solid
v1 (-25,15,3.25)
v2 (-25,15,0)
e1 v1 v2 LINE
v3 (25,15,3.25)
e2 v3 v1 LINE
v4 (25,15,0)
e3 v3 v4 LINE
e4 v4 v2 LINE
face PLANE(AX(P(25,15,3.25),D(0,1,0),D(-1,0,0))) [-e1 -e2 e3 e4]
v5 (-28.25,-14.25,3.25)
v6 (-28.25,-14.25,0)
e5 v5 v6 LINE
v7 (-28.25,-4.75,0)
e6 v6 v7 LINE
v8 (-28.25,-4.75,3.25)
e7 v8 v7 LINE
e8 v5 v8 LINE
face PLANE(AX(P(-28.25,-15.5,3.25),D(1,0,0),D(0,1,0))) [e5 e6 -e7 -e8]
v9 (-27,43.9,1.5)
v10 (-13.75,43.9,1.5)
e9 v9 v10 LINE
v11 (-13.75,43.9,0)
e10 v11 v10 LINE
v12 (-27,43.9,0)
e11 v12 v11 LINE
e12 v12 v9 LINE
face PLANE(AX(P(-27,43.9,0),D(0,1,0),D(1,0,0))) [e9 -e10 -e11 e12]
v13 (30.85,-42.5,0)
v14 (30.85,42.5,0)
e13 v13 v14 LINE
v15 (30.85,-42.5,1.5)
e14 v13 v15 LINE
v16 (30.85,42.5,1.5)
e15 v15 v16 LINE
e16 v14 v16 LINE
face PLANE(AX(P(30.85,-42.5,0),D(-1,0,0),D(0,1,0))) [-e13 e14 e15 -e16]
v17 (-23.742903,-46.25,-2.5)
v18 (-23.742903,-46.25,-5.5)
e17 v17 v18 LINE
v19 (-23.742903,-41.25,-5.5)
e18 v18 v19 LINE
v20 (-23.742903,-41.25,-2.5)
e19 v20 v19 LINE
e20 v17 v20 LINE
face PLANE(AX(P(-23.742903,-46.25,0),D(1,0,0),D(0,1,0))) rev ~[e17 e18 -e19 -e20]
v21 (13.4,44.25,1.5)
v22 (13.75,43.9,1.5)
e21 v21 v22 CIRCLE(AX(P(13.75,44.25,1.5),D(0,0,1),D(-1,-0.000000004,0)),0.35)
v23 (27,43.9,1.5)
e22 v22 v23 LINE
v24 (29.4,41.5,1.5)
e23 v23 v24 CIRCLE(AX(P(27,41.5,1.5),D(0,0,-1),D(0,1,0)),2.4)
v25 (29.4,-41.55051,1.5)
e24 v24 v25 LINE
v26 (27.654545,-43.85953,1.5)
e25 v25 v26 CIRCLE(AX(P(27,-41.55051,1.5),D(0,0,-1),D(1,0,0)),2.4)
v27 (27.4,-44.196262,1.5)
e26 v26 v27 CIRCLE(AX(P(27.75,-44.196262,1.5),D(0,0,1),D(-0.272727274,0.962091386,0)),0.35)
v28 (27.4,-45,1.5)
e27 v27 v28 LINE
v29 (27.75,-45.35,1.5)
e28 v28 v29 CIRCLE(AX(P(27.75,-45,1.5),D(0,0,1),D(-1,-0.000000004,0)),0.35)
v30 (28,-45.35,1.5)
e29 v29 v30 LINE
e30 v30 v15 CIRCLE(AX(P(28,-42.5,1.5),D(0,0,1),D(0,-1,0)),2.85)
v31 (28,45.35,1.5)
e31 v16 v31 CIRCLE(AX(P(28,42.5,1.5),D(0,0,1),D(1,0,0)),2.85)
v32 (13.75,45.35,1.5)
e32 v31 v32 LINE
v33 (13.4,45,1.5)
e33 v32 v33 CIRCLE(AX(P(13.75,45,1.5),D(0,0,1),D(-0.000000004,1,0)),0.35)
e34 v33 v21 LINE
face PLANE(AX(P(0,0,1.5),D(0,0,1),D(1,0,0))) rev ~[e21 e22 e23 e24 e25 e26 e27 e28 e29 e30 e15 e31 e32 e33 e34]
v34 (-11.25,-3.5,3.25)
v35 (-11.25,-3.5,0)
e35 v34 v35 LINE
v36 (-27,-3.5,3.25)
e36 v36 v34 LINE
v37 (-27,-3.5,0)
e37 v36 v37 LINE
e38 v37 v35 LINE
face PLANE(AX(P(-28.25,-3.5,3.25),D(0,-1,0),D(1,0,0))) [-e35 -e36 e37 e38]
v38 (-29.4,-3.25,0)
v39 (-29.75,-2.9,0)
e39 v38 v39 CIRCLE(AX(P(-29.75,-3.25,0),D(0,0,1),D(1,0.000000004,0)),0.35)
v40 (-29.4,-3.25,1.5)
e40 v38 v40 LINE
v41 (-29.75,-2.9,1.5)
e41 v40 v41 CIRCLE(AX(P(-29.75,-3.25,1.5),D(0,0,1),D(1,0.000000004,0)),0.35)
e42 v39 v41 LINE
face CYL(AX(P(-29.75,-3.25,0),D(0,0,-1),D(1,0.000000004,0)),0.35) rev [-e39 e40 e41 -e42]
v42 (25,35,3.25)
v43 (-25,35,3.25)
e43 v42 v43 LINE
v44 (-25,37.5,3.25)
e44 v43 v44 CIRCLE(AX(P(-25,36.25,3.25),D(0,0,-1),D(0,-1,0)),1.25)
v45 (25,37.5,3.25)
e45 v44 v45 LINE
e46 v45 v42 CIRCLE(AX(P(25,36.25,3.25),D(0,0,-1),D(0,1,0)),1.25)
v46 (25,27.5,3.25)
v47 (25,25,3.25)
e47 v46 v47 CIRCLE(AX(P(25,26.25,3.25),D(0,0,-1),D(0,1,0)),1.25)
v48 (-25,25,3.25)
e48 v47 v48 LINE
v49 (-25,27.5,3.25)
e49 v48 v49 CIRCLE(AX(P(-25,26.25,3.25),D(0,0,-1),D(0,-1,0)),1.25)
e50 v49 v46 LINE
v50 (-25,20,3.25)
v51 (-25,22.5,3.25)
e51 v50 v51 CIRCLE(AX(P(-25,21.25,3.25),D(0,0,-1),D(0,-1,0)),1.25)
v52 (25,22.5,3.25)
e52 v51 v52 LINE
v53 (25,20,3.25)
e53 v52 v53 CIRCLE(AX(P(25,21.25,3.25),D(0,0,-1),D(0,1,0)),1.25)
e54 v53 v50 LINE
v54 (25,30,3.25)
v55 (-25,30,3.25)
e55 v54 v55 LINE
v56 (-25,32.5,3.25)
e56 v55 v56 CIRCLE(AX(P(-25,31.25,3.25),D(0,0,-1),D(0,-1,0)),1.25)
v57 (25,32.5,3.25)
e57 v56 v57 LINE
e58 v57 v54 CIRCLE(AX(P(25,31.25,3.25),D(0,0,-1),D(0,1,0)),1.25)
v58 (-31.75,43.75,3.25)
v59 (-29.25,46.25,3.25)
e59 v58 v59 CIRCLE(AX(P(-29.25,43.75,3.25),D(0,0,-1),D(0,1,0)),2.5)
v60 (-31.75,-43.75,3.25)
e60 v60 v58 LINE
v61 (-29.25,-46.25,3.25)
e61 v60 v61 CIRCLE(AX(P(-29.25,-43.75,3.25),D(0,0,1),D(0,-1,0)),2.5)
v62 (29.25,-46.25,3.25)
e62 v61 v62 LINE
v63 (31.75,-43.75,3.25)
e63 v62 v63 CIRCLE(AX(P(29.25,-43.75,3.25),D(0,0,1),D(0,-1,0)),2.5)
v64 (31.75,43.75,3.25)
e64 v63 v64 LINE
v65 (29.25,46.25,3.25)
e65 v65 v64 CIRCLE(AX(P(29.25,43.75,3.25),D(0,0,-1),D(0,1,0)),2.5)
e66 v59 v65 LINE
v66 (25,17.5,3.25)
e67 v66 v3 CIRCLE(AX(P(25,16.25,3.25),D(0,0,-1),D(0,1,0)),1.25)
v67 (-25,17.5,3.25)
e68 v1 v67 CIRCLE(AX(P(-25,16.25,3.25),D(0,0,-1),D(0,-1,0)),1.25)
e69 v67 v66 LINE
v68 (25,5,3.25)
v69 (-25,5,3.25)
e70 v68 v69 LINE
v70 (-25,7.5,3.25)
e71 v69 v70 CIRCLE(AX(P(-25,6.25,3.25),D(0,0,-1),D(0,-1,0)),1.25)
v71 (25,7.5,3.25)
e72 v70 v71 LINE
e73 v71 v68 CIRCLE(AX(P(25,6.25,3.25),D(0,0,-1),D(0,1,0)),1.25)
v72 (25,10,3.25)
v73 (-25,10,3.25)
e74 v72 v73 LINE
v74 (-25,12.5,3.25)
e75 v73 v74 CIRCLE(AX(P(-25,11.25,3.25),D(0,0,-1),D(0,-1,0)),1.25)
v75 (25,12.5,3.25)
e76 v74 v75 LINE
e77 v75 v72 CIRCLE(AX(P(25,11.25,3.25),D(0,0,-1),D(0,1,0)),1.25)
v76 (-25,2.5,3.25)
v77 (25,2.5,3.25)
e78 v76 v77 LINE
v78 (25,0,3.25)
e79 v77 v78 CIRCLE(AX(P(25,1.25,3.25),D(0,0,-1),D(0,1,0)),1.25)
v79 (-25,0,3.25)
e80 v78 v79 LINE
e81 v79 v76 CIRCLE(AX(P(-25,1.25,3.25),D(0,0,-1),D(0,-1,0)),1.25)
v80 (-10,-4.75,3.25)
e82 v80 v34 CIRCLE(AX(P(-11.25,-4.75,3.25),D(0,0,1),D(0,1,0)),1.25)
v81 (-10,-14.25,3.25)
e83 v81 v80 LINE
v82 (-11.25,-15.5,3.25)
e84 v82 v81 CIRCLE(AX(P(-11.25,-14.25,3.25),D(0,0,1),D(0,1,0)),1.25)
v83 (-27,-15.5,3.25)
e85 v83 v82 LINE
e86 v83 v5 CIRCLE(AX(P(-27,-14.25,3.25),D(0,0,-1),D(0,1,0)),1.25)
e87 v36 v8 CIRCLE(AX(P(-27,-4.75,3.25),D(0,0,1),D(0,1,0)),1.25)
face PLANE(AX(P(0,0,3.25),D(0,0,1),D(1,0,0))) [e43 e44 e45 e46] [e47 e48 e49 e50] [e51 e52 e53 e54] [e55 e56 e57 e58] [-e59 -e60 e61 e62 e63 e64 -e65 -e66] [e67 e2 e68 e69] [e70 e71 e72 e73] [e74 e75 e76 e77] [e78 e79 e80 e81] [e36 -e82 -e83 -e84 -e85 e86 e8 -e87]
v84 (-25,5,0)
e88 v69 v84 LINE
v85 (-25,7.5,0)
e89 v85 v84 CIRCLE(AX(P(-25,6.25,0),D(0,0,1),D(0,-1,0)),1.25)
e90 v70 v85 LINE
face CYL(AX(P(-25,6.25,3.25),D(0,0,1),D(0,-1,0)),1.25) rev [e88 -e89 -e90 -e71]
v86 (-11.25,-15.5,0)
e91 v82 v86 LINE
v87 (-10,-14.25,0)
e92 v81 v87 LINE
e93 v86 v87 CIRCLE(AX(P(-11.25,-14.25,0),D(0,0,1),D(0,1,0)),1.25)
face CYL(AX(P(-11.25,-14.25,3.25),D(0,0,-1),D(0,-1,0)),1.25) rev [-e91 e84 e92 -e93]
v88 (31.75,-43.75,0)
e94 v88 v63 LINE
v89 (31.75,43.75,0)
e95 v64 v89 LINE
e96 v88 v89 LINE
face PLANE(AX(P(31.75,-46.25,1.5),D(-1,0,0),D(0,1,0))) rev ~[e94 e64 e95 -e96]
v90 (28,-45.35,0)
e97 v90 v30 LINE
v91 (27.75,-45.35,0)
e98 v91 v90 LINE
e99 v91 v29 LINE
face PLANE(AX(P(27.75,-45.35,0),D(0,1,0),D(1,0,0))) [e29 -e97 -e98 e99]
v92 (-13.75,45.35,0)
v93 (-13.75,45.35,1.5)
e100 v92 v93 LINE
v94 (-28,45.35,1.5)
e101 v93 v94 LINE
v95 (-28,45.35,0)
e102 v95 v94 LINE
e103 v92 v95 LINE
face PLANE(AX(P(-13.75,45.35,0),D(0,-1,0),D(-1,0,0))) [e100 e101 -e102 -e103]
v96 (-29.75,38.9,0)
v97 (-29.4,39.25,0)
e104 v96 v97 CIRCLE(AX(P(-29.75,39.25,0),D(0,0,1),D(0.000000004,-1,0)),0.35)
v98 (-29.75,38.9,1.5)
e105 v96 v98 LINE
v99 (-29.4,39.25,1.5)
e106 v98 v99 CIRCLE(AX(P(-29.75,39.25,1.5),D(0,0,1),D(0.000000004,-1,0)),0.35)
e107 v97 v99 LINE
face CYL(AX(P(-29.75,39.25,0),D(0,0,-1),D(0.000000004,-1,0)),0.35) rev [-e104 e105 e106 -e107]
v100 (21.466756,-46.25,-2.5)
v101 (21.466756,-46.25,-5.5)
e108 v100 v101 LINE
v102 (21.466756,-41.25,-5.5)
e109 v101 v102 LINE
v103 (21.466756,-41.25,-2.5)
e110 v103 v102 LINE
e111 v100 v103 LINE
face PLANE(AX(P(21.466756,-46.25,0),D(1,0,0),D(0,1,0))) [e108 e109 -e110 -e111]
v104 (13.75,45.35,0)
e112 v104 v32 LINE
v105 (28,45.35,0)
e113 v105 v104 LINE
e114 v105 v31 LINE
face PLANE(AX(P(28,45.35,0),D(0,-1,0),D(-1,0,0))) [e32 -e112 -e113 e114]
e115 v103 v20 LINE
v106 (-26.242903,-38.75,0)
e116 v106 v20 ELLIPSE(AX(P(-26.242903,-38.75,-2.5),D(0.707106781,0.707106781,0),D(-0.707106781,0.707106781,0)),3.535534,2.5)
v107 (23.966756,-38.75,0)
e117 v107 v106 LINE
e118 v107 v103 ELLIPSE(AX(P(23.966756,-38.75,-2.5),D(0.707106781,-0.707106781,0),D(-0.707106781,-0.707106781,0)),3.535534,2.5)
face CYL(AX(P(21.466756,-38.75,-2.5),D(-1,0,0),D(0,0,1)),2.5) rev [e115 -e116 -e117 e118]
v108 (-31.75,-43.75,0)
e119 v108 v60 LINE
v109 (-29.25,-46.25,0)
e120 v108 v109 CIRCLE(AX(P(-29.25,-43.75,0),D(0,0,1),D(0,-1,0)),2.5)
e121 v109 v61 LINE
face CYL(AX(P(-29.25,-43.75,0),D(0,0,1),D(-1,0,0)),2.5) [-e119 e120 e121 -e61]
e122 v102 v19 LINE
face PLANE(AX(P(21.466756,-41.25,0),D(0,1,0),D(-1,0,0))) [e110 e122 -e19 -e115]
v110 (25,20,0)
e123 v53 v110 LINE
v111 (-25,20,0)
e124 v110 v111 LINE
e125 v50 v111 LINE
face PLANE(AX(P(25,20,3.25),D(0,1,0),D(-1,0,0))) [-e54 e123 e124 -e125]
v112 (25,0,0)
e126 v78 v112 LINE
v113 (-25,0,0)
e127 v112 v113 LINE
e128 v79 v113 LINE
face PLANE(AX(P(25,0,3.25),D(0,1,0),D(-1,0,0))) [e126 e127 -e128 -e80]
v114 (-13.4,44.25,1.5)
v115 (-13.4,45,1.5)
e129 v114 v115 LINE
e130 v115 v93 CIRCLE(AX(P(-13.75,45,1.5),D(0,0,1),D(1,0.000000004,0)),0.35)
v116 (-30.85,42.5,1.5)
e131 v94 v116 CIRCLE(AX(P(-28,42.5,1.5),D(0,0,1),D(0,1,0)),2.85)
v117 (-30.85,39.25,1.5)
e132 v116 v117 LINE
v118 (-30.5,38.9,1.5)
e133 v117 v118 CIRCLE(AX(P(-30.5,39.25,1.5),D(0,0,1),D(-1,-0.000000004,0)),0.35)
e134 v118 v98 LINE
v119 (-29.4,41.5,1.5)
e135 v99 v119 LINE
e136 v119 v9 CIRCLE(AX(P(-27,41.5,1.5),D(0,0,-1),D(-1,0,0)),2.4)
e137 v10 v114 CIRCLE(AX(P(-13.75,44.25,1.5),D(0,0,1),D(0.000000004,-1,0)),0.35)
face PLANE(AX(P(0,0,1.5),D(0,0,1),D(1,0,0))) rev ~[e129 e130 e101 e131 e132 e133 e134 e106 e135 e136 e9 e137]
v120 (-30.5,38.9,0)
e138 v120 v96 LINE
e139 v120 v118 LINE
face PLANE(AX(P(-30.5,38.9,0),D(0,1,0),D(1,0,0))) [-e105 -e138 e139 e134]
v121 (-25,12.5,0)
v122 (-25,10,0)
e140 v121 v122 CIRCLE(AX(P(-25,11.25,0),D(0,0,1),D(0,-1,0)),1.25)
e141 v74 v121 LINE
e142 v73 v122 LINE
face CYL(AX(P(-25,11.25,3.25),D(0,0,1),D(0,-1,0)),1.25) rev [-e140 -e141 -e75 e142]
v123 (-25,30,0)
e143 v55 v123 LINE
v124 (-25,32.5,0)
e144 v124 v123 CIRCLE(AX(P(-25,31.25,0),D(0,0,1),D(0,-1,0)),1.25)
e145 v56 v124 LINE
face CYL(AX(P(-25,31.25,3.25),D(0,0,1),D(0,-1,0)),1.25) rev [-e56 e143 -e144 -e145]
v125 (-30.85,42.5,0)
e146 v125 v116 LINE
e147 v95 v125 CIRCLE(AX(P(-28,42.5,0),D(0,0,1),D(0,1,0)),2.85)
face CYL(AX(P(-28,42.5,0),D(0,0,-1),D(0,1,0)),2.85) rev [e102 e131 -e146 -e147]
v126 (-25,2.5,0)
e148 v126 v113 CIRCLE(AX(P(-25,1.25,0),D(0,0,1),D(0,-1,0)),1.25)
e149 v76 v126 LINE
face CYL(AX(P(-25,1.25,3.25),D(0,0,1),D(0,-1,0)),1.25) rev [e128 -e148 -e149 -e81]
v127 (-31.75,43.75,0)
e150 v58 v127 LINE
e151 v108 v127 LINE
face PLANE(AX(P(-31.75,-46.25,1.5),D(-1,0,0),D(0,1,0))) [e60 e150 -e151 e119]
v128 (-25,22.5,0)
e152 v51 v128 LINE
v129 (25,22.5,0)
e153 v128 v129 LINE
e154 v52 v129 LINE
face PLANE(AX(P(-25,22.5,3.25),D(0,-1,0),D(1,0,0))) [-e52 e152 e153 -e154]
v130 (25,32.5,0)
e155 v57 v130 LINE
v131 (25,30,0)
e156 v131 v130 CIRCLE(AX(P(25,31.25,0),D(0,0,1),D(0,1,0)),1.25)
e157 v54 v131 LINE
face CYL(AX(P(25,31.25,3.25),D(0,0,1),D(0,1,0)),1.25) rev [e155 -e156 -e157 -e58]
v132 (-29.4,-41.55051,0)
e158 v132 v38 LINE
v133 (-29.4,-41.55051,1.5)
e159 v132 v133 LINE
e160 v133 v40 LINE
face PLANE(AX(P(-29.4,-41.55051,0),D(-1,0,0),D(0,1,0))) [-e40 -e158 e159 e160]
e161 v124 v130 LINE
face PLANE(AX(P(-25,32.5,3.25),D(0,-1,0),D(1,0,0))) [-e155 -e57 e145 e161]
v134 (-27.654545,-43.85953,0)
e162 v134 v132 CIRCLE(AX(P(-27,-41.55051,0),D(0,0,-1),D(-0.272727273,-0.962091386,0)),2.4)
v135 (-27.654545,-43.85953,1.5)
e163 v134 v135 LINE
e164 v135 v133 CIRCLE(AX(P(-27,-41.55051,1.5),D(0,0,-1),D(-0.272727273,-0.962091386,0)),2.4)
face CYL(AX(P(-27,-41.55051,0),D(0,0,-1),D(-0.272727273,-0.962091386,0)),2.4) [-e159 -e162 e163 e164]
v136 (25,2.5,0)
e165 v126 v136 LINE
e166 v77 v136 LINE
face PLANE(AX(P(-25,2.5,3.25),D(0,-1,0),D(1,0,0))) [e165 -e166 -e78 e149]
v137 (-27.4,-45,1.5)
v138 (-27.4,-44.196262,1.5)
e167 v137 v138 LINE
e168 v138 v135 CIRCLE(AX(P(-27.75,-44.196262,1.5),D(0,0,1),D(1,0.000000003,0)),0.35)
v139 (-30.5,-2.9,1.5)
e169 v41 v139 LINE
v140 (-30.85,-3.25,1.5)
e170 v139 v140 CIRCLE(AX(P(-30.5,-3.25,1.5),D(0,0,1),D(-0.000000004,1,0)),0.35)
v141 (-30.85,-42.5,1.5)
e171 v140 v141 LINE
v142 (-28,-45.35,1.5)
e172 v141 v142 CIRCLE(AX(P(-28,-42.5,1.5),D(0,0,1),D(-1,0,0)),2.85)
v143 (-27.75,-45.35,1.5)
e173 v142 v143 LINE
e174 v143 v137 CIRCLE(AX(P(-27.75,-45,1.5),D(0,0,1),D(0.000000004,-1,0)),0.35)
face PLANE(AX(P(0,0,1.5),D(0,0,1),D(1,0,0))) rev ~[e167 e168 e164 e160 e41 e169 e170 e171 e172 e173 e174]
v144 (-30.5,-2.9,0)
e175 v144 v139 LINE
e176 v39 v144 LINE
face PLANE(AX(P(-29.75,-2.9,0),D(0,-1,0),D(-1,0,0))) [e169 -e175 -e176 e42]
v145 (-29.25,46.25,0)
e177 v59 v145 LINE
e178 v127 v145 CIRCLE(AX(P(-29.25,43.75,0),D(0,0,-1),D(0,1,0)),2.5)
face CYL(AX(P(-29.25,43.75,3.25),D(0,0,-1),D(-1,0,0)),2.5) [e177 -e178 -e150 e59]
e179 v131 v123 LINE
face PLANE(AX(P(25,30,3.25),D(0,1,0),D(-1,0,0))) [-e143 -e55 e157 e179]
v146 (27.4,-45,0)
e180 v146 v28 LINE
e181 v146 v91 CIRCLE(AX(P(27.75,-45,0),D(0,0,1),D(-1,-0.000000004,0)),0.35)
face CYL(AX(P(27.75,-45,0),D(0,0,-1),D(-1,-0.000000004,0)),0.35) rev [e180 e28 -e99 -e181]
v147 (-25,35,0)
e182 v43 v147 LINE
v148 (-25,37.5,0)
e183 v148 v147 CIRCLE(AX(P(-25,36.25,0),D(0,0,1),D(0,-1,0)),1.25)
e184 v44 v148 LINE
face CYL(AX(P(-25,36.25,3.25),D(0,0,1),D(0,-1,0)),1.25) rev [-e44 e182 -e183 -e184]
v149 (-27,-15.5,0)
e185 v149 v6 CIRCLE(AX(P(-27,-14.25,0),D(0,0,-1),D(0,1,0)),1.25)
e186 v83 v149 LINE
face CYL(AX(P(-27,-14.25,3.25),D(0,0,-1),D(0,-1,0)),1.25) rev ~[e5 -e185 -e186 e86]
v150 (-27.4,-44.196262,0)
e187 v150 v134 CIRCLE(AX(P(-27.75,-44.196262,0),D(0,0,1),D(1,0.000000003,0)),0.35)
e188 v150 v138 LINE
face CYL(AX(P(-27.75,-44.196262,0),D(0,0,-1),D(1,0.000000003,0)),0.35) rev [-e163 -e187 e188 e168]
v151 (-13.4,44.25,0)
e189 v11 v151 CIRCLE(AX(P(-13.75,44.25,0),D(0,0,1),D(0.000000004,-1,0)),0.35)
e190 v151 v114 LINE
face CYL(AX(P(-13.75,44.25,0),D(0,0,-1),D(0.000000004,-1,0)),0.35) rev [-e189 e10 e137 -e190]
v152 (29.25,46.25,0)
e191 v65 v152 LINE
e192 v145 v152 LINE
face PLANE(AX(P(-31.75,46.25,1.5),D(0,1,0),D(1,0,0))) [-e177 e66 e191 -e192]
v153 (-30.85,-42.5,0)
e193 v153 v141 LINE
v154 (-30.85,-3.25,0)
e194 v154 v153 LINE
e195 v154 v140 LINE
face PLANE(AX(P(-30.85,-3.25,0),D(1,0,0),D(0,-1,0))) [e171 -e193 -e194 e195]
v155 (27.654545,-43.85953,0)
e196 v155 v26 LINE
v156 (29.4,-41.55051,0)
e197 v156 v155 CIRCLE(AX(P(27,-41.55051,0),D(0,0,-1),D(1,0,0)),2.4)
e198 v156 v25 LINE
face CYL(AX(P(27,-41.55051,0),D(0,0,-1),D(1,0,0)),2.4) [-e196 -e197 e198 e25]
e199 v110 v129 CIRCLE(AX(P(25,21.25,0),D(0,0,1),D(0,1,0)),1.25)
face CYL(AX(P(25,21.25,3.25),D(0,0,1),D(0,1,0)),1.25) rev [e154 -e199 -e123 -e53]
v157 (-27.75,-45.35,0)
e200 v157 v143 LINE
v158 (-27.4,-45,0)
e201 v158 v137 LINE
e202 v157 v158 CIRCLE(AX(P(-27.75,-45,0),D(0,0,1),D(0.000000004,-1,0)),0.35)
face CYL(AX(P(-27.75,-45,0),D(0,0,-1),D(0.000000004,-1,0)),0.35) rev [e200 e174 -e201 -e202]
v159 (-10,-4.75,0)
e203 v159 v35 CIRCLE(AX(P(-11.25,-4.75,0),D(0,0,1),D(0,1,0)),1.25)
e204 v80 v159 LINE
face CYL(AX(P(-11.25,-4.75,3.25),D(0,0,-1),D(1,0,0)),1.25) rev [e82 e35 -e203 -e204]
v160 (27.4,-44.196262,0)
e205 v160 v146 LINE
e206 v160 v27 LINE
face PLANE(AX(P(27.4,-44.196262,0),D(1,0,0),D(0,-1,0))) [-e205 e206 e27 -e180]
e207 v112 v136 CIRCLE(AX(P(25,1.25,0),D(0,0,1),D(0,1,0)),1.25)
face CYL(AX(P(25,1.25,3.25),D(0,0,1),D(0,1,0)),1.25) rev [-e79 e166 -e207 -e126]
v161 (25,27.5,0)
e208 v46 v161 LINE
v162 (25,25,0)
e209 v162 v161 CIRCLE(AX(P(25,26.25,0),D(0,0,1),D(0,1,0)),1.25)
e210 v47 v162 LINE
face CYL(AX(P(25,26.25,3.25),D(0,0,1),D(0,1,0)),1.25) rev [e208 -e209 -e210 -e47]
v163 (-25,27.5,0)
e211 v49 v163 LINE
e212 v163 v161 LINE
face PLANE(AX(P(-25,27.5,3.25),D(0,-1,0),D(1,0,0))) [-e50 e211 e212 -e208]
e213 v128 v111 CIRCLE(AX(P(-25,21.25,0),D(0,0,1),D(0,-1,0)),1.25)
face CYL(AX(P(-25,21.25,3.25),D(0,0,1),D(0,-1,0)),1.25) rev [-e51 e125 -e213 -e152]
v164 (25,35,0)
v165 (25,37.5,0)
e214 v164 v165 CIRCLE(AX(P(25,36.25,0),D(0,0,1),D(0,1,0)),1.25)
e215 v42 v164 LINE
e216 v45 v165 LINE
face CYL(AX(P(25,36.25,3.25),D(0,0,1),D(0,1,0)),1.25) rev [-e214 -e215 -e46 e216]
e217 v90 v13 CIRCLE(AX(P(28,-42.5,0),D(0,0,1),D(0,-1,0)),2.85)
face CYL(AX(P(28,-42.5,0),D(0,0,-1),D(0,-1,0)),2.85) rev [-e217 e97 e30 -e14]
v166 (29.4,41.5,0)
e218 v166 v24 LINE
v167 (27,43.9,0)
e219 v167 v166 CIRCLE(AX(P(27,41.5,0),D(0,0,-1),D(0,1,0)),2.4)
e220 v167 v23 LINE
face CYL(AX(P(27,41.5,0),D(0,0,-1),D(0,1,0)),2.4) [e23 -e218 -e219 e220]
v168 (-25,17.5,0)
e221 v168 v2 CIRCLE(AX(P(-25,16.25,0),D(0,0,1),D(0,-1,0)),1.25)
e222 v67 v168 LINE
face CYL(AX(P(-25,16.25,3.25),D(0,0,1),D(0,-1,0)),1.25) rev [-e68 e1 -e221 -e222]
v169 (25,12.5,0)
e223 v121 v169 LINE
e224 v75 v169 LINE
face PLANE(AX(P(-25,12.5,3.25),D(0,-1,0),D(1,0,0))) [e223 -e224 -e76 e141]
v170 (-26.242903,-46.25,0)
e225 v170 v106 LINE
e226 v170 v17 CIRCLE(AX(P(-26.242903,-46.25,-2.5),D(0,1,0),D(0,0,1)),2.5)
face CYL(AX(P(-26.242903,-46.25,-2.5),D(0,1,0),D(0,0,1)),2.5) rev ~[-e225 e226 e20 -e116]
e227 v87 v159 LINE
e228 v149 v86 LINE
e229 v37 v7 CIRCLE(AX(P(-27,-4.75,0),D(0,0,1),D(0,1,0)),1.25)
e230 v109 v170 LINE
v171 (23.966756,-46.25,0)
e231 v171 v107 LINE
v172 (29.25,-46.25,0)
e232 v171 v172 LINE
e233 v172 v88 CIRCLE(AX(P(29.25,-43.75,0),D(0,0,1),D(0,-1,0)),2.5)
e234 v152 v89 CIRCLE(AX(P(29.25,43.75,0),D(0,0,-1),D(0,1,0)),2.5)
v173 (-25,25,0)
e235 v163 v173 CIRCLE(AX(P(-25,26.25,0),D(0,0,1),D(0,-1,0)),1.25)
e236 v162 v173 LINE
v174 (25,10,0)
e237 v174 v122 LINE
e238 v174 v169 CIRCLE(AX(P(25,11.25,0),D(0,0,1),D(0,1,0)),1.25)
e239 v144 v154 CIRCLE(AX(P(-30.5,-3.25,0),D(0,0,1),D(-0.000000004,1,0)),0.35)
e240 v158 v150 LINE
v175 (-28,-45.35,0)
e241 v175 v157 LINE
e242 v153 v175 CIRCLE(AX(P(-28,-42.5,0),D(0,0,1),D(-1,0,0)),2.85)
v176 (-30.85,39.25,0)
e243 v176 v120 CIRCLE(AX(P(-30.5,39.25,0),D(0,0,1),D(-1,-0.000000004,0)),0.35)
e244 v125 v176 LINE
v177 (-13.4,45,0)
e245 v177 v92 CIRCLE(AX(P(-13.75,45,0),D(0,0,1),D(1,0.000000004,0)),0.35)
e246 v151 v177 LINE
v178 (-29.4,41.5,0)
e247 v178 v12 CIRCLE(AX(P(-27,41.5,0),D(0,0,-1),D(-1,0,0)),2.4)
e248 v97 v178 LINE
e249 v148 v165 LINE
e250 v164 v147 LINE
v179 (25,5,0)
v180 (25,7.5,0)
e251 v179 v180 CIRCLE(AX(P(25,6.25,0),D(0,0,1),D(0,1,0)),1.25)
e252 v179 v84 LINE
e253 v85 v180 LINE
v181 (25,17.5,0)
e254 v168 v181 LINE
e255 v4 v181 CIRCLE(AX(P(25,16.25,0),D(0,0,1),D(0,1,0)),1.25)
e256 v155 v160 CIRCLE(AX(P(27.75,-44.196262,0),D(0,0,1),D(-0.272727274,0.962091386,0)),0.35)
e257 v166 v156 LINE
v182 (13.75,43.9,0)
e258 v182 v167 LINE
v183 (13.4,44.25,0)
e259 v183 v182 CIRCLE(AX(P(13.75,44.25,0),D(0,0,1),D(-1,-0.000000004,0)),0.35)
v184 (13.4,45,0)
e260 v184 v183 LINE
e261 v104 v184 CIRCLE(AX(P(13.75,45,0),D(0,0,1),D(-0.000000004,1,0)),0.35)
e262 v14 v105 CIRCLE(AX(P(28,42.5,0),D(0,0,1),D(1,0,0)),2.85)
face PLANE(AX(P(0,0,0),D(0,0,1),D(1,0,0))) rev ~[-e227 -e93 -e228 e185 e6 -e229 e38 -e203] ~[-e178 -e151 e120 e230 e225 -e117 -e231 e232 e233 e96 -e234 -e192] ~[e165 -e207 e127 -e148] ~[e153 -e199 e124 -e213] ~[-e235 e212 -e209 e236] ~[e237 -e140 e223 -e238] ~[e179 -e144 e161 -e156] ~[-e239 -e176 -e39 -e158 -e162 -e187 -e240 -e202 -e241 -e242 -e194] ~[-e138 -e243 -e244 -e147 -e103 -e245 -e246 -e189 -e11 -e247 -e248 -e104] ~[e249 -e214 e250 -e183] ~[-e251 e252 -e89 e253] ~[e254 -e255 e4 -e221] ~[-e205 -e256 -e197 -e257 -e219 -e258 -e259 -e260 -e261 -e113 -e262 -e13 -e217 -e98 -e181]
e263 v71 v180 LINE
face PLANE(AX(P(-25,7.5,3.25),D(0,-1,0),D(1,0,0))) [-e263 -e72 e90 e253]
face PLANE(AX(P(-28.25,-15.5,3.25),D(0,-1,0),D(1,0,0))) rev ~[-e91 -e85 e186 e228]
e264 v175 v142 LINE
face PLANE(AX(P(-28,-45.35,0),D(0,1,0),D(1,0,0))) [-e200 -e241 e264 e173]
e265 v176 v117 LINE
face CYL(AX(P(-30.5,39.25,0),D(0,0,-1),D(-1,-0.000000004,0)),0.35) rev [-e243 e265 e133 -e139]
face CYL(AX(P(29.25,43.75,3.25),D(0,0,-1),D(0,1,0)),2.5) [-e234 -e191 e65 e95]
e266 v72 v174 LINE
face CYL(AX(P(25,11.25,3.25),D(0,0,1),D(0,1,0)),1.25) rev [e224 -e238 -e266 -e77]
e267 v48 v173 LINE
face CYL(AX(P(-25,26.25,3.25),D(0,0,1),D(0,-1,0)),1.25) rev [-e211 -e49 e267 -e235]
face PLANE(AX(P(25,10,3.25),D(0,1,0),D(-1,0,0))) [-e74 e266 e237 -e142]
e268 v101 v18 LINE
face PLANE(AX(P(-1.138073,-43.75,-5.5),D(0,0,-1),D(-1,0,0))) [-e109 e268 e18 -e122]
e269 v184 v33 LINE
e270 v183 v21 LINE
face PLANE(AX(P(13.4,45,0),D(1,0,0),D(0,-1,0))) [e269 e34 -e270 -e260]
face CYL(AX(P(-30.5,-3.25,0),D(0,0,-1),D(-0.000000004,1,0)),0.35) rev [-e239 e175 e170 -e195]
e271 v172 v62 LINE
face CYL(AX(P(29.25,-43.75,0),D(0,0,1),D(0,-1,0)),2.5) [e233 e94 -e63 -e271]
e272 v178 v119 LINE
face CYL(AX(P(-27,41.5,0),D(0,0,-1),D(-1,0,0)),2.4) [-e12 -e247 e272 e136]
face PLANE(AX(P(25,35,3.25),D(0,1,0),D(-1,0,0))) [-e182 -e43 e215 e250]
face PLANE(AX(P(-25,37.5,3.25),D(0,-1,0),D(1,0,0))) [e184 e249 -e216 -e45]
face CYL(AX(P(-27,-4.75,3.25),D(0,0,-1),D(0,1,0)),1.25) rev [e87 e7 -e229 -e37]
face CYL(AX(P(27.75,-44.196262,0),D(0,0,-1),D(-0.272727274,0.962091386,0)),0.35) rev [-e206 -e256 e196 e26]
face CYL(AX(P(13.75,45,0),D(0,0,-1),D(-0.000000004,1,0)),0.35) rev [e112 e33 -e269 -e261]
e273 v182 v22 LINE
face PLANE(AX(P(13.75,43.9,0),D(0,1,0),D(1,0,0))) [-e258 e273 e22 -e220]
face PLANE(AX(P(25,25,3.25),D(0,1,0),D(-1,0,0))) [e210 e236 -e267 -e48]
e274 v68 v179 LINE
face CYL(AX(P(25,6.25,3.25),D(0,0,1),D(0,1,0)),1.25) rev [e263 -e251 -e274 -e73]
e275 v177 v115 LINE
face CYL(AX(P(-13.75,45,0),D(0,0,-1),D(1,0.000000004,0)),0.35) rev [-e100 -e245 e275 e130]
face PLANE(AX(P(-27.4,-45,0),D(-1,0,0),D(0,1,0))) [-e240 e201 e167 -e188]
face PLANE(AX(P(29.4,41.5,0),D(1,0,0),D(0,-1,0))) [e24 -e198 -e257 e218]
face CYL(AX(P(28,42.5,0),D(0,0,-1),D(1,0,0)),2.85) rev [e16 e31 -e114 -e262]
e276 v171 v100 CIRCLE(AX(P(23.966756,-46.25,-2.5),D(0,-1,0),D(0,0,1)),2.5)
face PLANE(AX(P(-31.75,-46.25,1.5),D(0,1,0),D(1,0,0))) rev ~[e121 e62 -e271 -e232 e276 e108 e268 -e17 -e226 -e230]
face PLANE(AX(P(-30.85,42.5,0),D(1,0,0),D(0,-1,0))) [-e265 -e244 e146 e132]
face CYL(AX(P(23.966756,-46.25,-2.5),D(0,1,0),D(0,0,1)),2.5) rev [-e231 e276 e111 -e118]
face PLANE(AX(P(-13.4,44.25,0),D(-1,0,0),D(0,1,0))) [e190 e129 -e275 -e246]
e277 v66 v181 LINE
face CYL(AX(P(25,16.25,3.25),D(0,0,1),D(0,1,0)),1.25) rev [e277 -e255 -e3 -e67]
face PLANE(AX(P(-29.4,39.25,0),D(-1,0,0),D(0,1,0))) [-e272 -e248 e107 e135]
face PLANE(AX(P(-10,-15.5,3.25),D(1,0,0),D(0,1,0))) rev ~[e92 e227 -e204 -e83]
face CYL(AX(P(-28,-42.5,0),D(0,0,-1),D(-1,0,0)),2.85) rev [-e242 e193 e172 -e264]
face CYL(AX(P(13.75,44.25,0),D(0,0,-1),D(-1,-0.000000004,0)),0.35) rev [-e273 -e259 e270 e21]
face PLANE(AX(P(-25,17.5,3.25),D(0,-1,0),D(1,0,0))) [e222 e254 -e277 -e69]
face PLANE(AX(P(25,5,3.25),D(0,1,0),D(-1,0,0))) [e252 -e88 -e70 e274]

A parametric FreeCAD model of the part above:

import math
import FreeCAD as App
import Part
import Sketcher

V = App.Vector


def edges_at(feature, points):
    """Names of the edges that pass closest to the given points."""
    edges = feature.Shape.Edges
    near = lambda p: min(range(len(edges)), key=lambda i: edges[i].distToShape(Part.Vertex(*p))[0])
    return sorted({f"Edge{near(p) + 1}" for p in points})

doc = App.newDocument("Part")
body = doc.addObject("PartDesign::Body", "Body")

# Sketch on XY plane
sketch1 = doc.addObject("Sketcher::SketchObject", "Sketch")
body.addObject(sketch1)
sketch1.AttachmentSupport = (doc.XY_Plane, [""])
sketch1.MapMode = "FlatFace"
sketch1.addGeometry([
    Part.LineSegment(V(-31.75, 46.25, 0), V(-31.75, -46.25, 0)),  # 0
    Part.LineSegment(V(-31.75, -46.25, 0), V(31.75, -46.25, 0)),  # 1
    Part.LineSegment(V(31.75, -46.25, 0), V(31.75, 46.25, 0)),  # 2
    Part.LineSegment(V(31.75, 46.25, 0), V(-31.75, 46.25, 0)),  # 3
    Part.LineSegment(V(-29.4, -3.25, 0), V(-29.4, -41.55, 0)),  # 4
    Part.ArcOfCircle(Part.Circle(V(-27, -41.55, 0), V(0, 0, 1), 2.4), math.radians(180), math.radians(254)),  # 5
    Part.ArcOfCircle(Part.Circle(V(-27.75, -44.2, 0), V(0, 0, 1), 0.35), math.radians(0), math.radians(74)),  # 6
    Part.LineSegment(V(-27.4, -44.2, 0), V(-27.4, -45, 0)),  # 7
    Part.ArcOfCircle(Part.Circle(V(-27.75, -45, 0), V(0, 0, 1), 0.35), math.radians(-90), math.radians(0)),  # 8
    Part.LineSegment(V(-27.75, -45.35, 0), V(-28, -45.35, 0)),  # 9
    Part.ArcOfCircle(Part.Circle(V(-28, -42.5, 0), V(0, 0, 1), 2.85), math.radians(-180), math.radians(-90)),  # 10
    Part.LineSegment(V(-30.85, -42.5, 0), V(-30.85, -3.25, 0)),  # 11
    Part.ArcOfCircle(Part.Circle(V(-30.5, -3.25, 0), V(0, 0, 1), 0.35), math.radians(90), math.radians(180)),  # 12
    Part.LineSegment(V(-30.5, -2.9, 0), V(-29.75, -2.9, 0)),  # 13
    Part.ArcOfCircle(Part.Circle(V(-29.75, -3.25, 0), V(0, 0, 1), 0.35), math.radians(0), math.radians(90)),  # 14
    Part.LineSegment(V(-13.75, 43.9, 0), V(-27, 43.9, 0)),  # 15
    Part.ArcOfCircle(Part.Circle(V(-27, 41.5, 0), V(0, 0, 1), 2.4), math.radians(90), math.radians(180)),  # 16
    Part.LineSegment(V(-29.4, 41.5, 0), V(-29.4, 39.25, 0)),  # 17
    Part.ArcOfCircle(Part.Circle(V(-29.75, 39.25, 0), V(0, 0, 1), 0.35), math.radians(-90), math.radians(0)),  # 18
    Part.LineSegment(V(-29.75, 38.9, 0), V(-30.5, 38.9, 0)),  # 19
    Part.ArcOfCircle(Part.Circle(V(-30.5, 39.25, 0), V(0, 0, 1), 0.35), math.radians(-180), math.radians(-90)),  # 20
    Part.LineSegment(V(-30.85, 39.25, 0), V(-30.85, 42.5, 0)),  # 21
    Part.ArcOfCircle(Part.Circle(V(-28, 42.5, 0), V(0, 0, 1), 2.85), math.radians(90), math.radians(180)),  # 22
    Part.LineSegment(V(-28, 45.35, 0), V(-13.75, 45.35, 0)),  # 23
    Part.ArcOfCircle(Part.Circle(V(-13.75, 45, 0), V(0, 0, 1), 0.35), math.radians(0), math.radians(90)),  # 24
    Part.LineSegment(V(-13.4, 45, 0), V(-13.4, 44.25, 0)),  # 25
    Part.ArcOfCircle(Part.Circle(V(-13.75, 44.25, 0), V(0, 0, 1), 0.35), math.radians(-90), math.radians(0)),  # 26
    Part.LineSegment(V(30.85, 42.5, 0), V(30.85, -42.5, 0)),  # 27
    Part.ArcOfCircle(Part.Circle(V(28, -42.5, 0), V(0, 0, 1), 2.85), math.radians(-90), math.radians(0)),  # 28
    Part.LineSegment(V(28, -45.35, 0), V(27.75, -45.35, 0)),  # 29
    Part.ArcOfCircle(Part.Circle(V(27.75, -45, 0), V(0, 0, 1), 0.35), math.radians(-180), math.radians(-90)),  # 30
    Part.LineSegment(V(27.4, -45, 0), V(27.4, -44.2, 0)),  # 31
    Part.ArcOfCircle(Part.Circle(V(27.75, -44.2, 0), V(0, 0, 1), 0.35), math.radians(106), math.radians(180)),  # 32
    Part.ArcOfCircle(Part.Circle(V(27, -41.55, 0), V(0, 0, 1), 2.4), math.radians(-74), math.radians(0)),  # 33
    Part.LineSegment(V(29.4, -41.55, 0), V(29.4, 41.5, 0)),  # 34
    Part.ArcOfCircle(Part.Circle(V(27, 41.5, 0), V(0, 0, 1), 2.4), math.radians(0), math.radians(90)),  # 35
    Part.LineSegment(V(27, 43.9, 0), V(13.75, 43.9, 0)),  # 36
    Part.ArcOfCircle(Part.Circle(V(13.75, 44.25, 0), V(0, 0, 1), 0.35), math.radians(-180), math.radians(-90)),  # 37
    Part.LineSegment(V(13.4, 44.25, 0), V(13.4, 45, 0)),  # 38
    Part.ArcOfCircle(Part.Circle(V(13.75, 45, 0), V(0, 0, 1), 0.35), math.radians(90), math.radians(180)),  # 39
    Part.LineSegment(V(13.75, 45.35, 0), V(28, 45.35, 0)),  # 40
    Part.ArcOfCircle(Part.Circle(V(28, 42.5, 0), V(0, 0, 1), 2.85), math.radians(0), math.radians(90)),  # 41
], False)
sketch1.addConstraint([
    Sketcher.Constraint("Coincident", 0, 2, 1, 1),
    Sketcher.Constraint("Coincident", 1, 2, 2, 1),
    Sketcher.Constraint("Coincident", 2, 2, 3, 1),
    Sketcher.Constraint("Coincident", 3, 2, 0, 1),
    Sketcher.Constraint("Tangent", 4, 2, 5, 1),
    Sketcher.Constraint("Tangent", 5, 2, 6, 2),
    Sketcher.Constraint("Tangent", 6, 1, 7, 1),
    Sketcher.Constraint("Tangent", 7, 2, 8, 2),
    Sketcher.Constraint("Tangent", 8, 1, 9, 1),
    Sketcher.Constraint("Tangent", 9, 2, 10, 2),
    Sketcher.Constraint("Tangent", 10, 1, 11, 1),
    Sketcher.Constraint("Tangent", 11, 2, 12, 2),
    Sketcher.Constraint("Tangent", 12, 1, 13, 1),
    Sketcher.Constraint("Tangent", 13, 2, 14, 2),
    Sketcher.Constraint("Tangent", 14, 1, 4, 1),
    Sketcher.Constraint("Tangent", 15, 2, 16, 1),
    Sketcher.Constraint("Tangent", 16, 2, 17, 1),
    Sketcher.Constraint("Tangent", 17, 2, 18, 2),
    Sketcher.Constraint("Tangent", 18, 1, 19, 1),
    Sketcher.Constraint("Tangent", 19, 2, 20, 2),
    Sketcher.Constraint("Tangent", 20, 1, 21, 1),
    Sketcher.Constraint("Tangent", 21, 2, 22, 2),
    Sketcher.Constraint("Tangent", 22, 1, 23, 1),
    Sketcher.Constraint("Tangent", 23, 2, 24, 2),
    Sketcher.Constraint("Tangent", 24, 1, 25, 1),
    Sketcher.Constraint("Tangent", 25, 2, 26, 2),
    Sketcher.Constraint("Tangent", 26, 1, 15, 1),
    Sketcher.Constraint("Tangent", 27, 2, 28, 2),
    Sketcher.Constraint("Tangent", 28, 1, 29, 1),
    Sketcher.Constraint("Tangent", 29, 2, 30, 2),
    Sketcher.Constraint("Tangent", 30, 1, 31, 1),
    Sketcher.Constraint("Tangent", 31, 2, 32, 2),
    Sketcher.Constraint("Tangent", 32, 1, 33, 1),
    Sketcher.Constraint("Tangent", 33, 2, 34, 1),
    Sketcher.Constraint("Tangent", 34, 2, 35, 1),
    Sketcher.Constraint("Tangent", 35, 2, 36, 1),
    Sketcher.Constraint("Tangent", 36, 2, 37, 2),
    Sketcher.Constraint("Tangent", 37, 1, 38, 1),
    Sketcher.Constraint("Tangent", 38, 2, 39, 2),
    Sketcher.Constraint("Tangent", 39, 1, 40, 1),
    Sketcher.Constraint("Tangent", 40, 2, 41, 2),
    Sketcher.Constraint("Tangent", 41, 1, 27, 1),
    Sketcher.Constraint("Vertical", 0),
    Sketcher.Constraint("Horizontal", 1),
    Sketcher.Constraint("Vertical", 2),
    Sketcher.Constraint("Horizontal", 3),
    Sketcher.Constraint("Vertical", 4),
    Sketcher.Constraint("Vertical", 7),
    Sketcher.Constraint("Horizontal", 9),
    Sketcher.Constraint("Vertical", 11),
    Sketcher.Constraint("Horizontal", 13),
    Sketcher.Constraint("Horizontal", 15),
    Sketcher.Constraint("Vertical", 17),
    Sketcher.Constraint("Horizontal", 19),
    Sketcher.Constraint("Vertical", 21),
    Sketcher.Constraint("Horizontal", 23),
    Sketcher.Constraint("Vertical", 25),
    Sketcher.Constraint("Vertical", 27),
    Sketcher.Constraint("Horizontal", 29),
    Sketcher.Constraint("Vertical", 31),
    Sketcher.Constraint("Vertical", 34),
    Sketcher.Constraint("Horizontal", 36),
    Sketcher.Constraint("Vertical", 38),
    Sketcher.Constraint("Horizontal", 40),
    Sketcher.Constraint("Equal", 6, 8),
    Sketcher.Constraint("Equal", 8, 12),
    Sketcher.Constraint("Equal", 12, 14),
    Sketcher.Constraint("Equal", 5, 16),
    Sketcher.Constraint("Equal", 14, 18),
    Sketcher.Constraint("Equal", 18, 20),
    Sketcher.Constraint("Equal", 10, 22),
    Sketcher.Constraint("Equal", 20, 24),
    Sketcher.Constraint("Equal", 24, 26),
    Sketcher.Constraint("Equal", 22, 28),
    Sketcher.Constraint("Equal", 26, 30),
    Sketcher.Constraint("Equal", 30, 32),
    Sketcher.Constraint("Equal", 16, 33),
    Sketcher.Constraint("Equal", 33, 35),
    Sketcher.Constraint("Equal", 32, 37),
    Sketcher.Constraint("Equal", 37, 39),
    Sketcher.Constraint("Equal", 28, 41),
    Sketcher.Constraint("Symmetric", 22, 3, 28, 3, -1, 1),
    Sketcher.Constraint("Symmetric", 10, 3, 41, 3, -1, 1),
    Sketcher.Constraint("Symmetric", 0, 2, 2, 2, -1, 1),
    Sketcher.Constraint("Symmetric", 8, 3, 30, 3, -2),
    Sketcher.Constraint("Symmetric", 5, 3, 33, 3, -2),
    Sketcher.Constraint("Symmetric", 16, 3, 35, 3, -2),
    Sketcher.Constraint("Equal", 15, 36),
    Sketcher.Constraint("Equal", 19, 25),
    Sketcher.Constraint("Radius", 5, 2.4),
    Sketcher.Constraint("DistanceY", 27, 2, 27, 1, 85.0),
    Sketcher.Constraint("Radius", 6, 0.35),
    Sketcher.Constraint("Radius", 10, 2.85),
    Sketcher.Constraint("DistanceX", 1, 1, 1, 2, 63.5),
    Sketcher.Constraint("DistanceY", 0, 2, 0, 1, 92.5),
    Sketcher.Constraint("DistanceX", 5, 3, -1, 1, 27.0),
    Sketcher.Constraint("DistanceX", 10, 3, -1, 1, 28.0),
    Sketcher.Constraint("DistanceX", 9, 2, 9, 1, 0.25),
    Sketcher.Constraint("DistanceX", 15, 2, 15, 1, 13.25),
    Sketcher.Constraint("DistanceY", 11, 1, 11, 2, 39.25),
    Sketcher.Constraint("DistanceY", 17, 2, 17, 1, 2.25),
    Sketcher.Constraint("DistanceY", 4, 2, 4, 1, 38.30051),
])
pad1 = doc.addObject("PartDesign::Pad", "Pad")
body.addObject(pad1)
pad1.Profile = sketch1
pad1.Length = 1.5

# Sketch on XY plane
sketch2 = doc.addObject("Sketcher::SketchObject", "Sketch001")
body.addObject(sketch2)
sketch2.AttachmentSupport = (doc.XY_Plane, [""])
sketch2.MapMode = "FlatFace"
sketch2.AttachmentOffset = App.Placement(V(0, 0, 1.5), App.Rotation())
sketch2.addGeometry([
    Part.LineSegment(V(-32, 46, 0), V(-32, -46, 0)),
    Part.LineSegment(V(-32, -46, 0), V(32, -46, 0)),
    Part.LineSegment(V(32, -46, 0), V(32, 46, 0)),
    Part.LineSegment(V(32, 46, 0), V(-32, 46, 0)),
], False)
sketch2.addConstraint([
    Sketcher.Constraint("Coincident", 0, 2, 1, 1),
    Sketcher.Constraint("Coincident", 1, 2, 2, 1),
    Sketcher.Constraint("Coincident", 2, 2, 3, 1),
    Sketcher.Constraint("Coincident", 3, 2, 0, 1),
    Sketcher.Constraint("Vertical", 0),
    Sketcher.Constraint("Horizontal", 1),
    Sketcher.Constraint("Vertical", 2),
    Sketcher.Constraint("Horizontal", 3),
    Sketcher.Constraint("Symmetric", 0, 2, 2, 2, -1, 1),
    Sketcher.Constraint("DistanceX", 1, 1, 1, 2, 63.5),
    Sketcher.Constraint("DistanceY", 0, 2, 0, 1, 92.5),
])
pad2 = doc.addObject("PartDesign::Pad", "Pad001")
body.addObject(pad2)
pad2.Profile = sketch2
pad2.Length = 1.75

# Sketch on XY plane
sketch3 = doc.addObject("Sketcher::SketchObject", "Sketch002")
body.addObject(sketch3)
sketch3.AttachmentSupport = (doc.XY_Plane, [""])
sketch3.MapMode = "FlatFace"
sketch3.AttachmentOffset = App.Placement(V(0, 0, 3.25), App.Rotation())
sketch3.addGeometry([
    Part.LineSegment(V(-28, -4, 0), V(-28, -16, 0)),
    Part.LineSegment(V(-28, -16, 0), V(-10, -16, 0)),
    Part.LineSegment(V(-10, -16, 0), V(-10, -4, 0)),
    Part.LineSegment(V(-10, -4, 0), V(-28, -4, 0)),
], False)
sketch3.addConstraint([
    Sketcher.Constraint("Coincident", 0, 2, 1, 1),
    Sketcher.Constraint("Coincident", 1, 2, 2, 1),
    Sketcher.Constraint("Coincident", 2, 2, 3, 1),
    Sketcher.Constraint("Coincident", 3, 2, 0, 1),
    Sketcher.Constraint("Vertical", 0),
    Sketcher.Constraint("Horizontal", 1),
    Sketcher.Constraint("Vertical", 2),
    Sketcher.Constraint("Horizontal", 3),
    Sketcher.Constraint("DistanceY", 0, 2, 0, 1, 12.0),
    Sketcher.Constraint("DistanceX", 1, 2, -1, 1, 10.0),
    Sketcher.Constraint("DistanceX", 1, 1, 1, 2, 18.25),
    Sketcher.Constraint("DistanceY", 0, 2, -1, 1, 15.5),
])
pocket1 = doc.addObject("PartDesign::Pocket", "Pocket")
body.addObject(pocket1)
pocket1.Profile = sketch3
pocket1.Type = "ThroughAll"
doc.recompute()

fillet = doc.addObject("PartDesign::Fillet", "Fillet")
body.addObject(fillet)
fillet.Base = (pocket1, edges_at(pocket1, [
    (-31.75, 46.25, 1.625),
    (31.75, 46.25, 1.625),
    (31.75, -46.25, 1.625),
    (-31.75, -46.25, 1.625),
]))
fillet.Radius = 2.5
doc.recompute()

fillet2 = doc.addObject("PartDesign::Fillet", "Fillet001")
body.addObject(fillet2)
fillet2.Base = (fillet, edges_at(fillet, [
    (-28.25, -15.5, 1.625),
    (-28.25, -3.5, 1.625),
    (-10, -3.5, 1.625),
    (-10, -15.5, 1.625),
]))
fillet2.Radius = 1.25

# Sketch on XY plane
sketch4 = doc.addObject("Sketcher::SketchObject", "Sketch003")
body.addObject(sketch4)
sketch4.AttachmentSupport = (doc.XY_Plane, [""])
sketch4.MapMode = "FlatFace"
sketch4.AttachmentOffset = App.Placement(V(0, 0, 3.25), App.Rotation())
sketch4.addGeometry([
    Part.LineSegment(V(25, 37.5, 0), V(-25, 37.5, 0)),  # 0
    Part.ArcOfCircle(Part.Circle(V(-25, 36.2, 0), V(0, 0, 1), 1.2), math.radians(90), math.radians(270)),  # 1
    Part.LineSegment(V(-25, 35, 0), V(25, 35, 0)),  # 2
    Part.ArcOfCircle(Part.Circle(V(25, 36.2, 0), V(0, 0, 1), 1.2), math.radians(-90), math.radians(90)),  # 3
    Part.LineSegment(V(25, 32.5, 0), V(-25, 32.5, 0)),  # 4
    Part.ArcOfCircle(Part.Circle(V(-25, 31.2, 0), V(0, 0, 1), 1.2), math.radians(90), math.radians(270)),  # 5
    Part.LineSegment(V(-25, 30, 0), V(25, 30, 0)),  # 6
    Part.ArcOfCircle(Part.Circle(V(25, 31.2, 0), V(0, 0, 1), 1.2), math.radians(-90), math.radians(90)),  # 7
    Part.LineSegment(V(25, 27.5, 0), V(-25, 27.5, 0)),  # 8
    Part.ArcOfCircle(Part.Circle(V(-25, 26.2, 0), V(0, 0, 1), 1.2), math.radians(90), math.radians(270)),  # 9
    Part.LineSegment(V(-25, 25, 0), V(25, 25, 0)),  # 10
    Part.ArcOfCircle(Part.Circle(V(25, 26.2, 0), V(0, 0, 1), 1.2), math.radians(-90), math.radians(90)),  # 11
    Part.LineSegment(V(25, 22.5, 0), V(-25, 22.5, 0)),  # 12
    Part.ArcOfCircle(Part.Circle(V(-25, 21.2, 0), V(0, 0, 1), 1.2), math.radians(90), math.radians(270)),  # 13
    Part.LineSegment(V(-25, 20, 0), V(25, 20, 0)),  # 14
    Part.ArcOfCircle(Part.Circle(V(25, 21.2, 0), V(0, 0, 1), 1.2), math.radians(-90), math.radians(90)),  # 15
    Part.LineSegment(V(25, 17.5, 0), V(-25, 17.5, 0)),  # 16
    Part.ArcOfCircle(Part.Circle(V(-25, 16.2, 0), V(0, 0, 1), 1.2), math.radians(90), math.radians(270)),  # 17
    Part.LineSegment(V(-25, 15, 0), V(25, 15, 0)),  # 18
    Part.ArcOfCircle(Part.Circle(V(25, 16.2, 0), V(0, 0, 1), 1.2), math.radians(-90), math.radians(90)),  # 19
    Part.LineSegment(V(25, 12.5, 0), V(-25, 12.5, 0)),  # 20
    Part.ArcOfCircle(Part.Circle(V(-25, 11.2, 0), V(0, 0, 1), 1.2), math.radians(90), math.radians(270)),  # 21
    Part.LineSegment(V(-25, 10, 0), V(25, 10, 0)),  # 22
    Part.ArcOfCircle(Part.Circle(V(25, 11.2, 0), V(0, 0, 1), 1.2), math.radians(-90), math.radians(90)),  # 23
    Part.LineSegment(V(25, 7.5, 0), V(-25, 7.5, 0)),  # 24
    Part.ArcOfCircle(Part.Circle(V(-25, 6.2, 0), V(0, 0, 1), 1.2), math.radians(90), math.radians(270)),  # 25
    Part.LineSegment(V(-25, 5, 0), V(25, 5, 0)),  # 26
    Part.ArcOfCircle(Part.Circle(V(25, 6.2, 0), V(0, 0, 1), 1.2), math.radians(-90), math.radians(90)),  # 27
    Part.LineSegment(V(25, 2.5, 0), V(-25, 2.5, 0)),  # 28
    Part.ArcOfCircle(Part.Circle(V(-25, 1.2, 0), V(0, 0, 1), 1.2), math.radians(90), math.radians(270)),  # 29
    Part.LineSegment(V(-25, 0, 0), V(25, 0, 0)),  # 30
    Part.ArcOfCircle(Part.Circle(V(25, 1.2, 0), V(0, 0, 1), 1.2), math.radians(-90), math.radians(90)),  # 31
], False)
sketch4.addConstraint([
    Sketcher.Constraint("Tangent", 0, 2, 1, 1),
    Sketcher.Constraint("Tangent", 1, 2, 2, 1),
    Sketcher.Constraint("Tangent", 2, 2, 3, 1),
    Sketcher.Constraint("Tangent", 3, 2, 0, 1),
    Sketcher.Constraint("Tangent", 4, 2, 5, 1),
    Sketcher.Constraint("Tangent", 5, 2, 6, 1),
    Sketcher.Constraint("Tangent", 6, 2, 7, 1),
    Sketcher.Constraint("Tangent", 7, 2, 4, 1),
    Sketcher.Constraint("Tangent", 8, 2, 9, 1),
    Sketcher.Constraint("Tangent", 9, 2, 10, 1),
    Sketcher.Constraint("Tangent", 10, 2, 11, 1),
    Sketcher.Constraint("Tangent", 11, 2, 8, 1),
    Sketcher.Constraint("Tangent", 12, 2, 13, 1),
    Sketcher.Constraint("Tangent", 13, 2, 14, 1),
    Sketcher.Constraint("Tangent", 14, 2, 15, 1),
    Sketcher.Constraint("Tangent", 15, 2, 12, 1),
    Sketcher.Constraint("Tangent", 16, 2, 17, 1),
    Sketcher.Constraint("Tangent", 17, 2, 18, 1),
    Sketcher.Constraint("Tangent", 18, 2, 19, 1),
    Sketcher.Constraint("Tangent", 19, 2, 16, 1),
    Sketcher.Constraint("Tangent", 20, 2, 21, 1),
    Sketcher.Constraint("Tangent", 21, 2, 22, 1),
    Sketcher.Constraint("Tangent", 22, 2, 23, 1),
    Sketcher.Constraint("Tangent", 23, 2, 20, 1),
    Sketcher.Constraint("Tangent", 24, 2, 25, 1),
    Sketcher.Constraint("Tangent", 25, 2, 26, 1),
    Sketcher.Constraint("Tangent", 26, 2, 27, 1),
    Sketcher.Constraint("Tangent", 27, 2, 24, 1),
    Sketcher.Constraint("Tangent", 28, 2, 29, 1),
    Sketcher.Constraint("Tangent", 29, 2, 30, 1),
    Sketcher.Constraint("Tangent", 30, 2, 31, 1),
    Sketcher.Constraint("Tangent", 31, 2, 28, 1),
    Sketcher.Constraint("Horizontal", 0),
    Sketcher.Constraint("Horizontal", 2),
    Sketcher.Constraint("Horizontal", 4),
    Sketcher.Constraint("Horizontal", 6),
    Sketcher.Constraint("Horizontal", 8),
    Sketcher.Constraint("Horizontal", 10),
    Sketcher.Constraint("Horizontal", 12),
    Sketcher.Constraint("Horizontal", 14),
    Sketcher.Constraint("Horizontal", 16),
    Sketcher.Constraint("Horizontal", 18),
    Sketcher.Constraint("Horizontal", 20),
    Sketcher.Constraint("Horizontal", 22),
    Sketcher.Constraint("Horizontal", 24),
    Sketcher.Constraint("Horizontal", 26),
    Sketcher.Constraint("Horizontal", 28),
    Sketcher.Constraint("Horizontal", 30),
    Sketcher.Constraint("Equal", 3, 5),
    Sketcher.Constraint("Equal", 7, 9),
    Sketcher.Constraint("Equal", 11, 13),
    Sketcher.Constraint("Equal", 15, 17),
    Sketcher.Constraint("Equal", 19, 21),
    Sketcher.Constraint("Equal", 23, 25),
    Sketcher.Constraint("Equal", 27, 29),
    Sketcher.Constraint("Symmetric", 29, 2, 30, 2, -1, 1),
    Sketcher.Constraint("Vertical", 1, 3, 5, 3),
    Sketcher.Constraint("Vertical", 3, 3, 7, 3),
    Sketcher.Constraint("Vertical", 5, 3, 9, 3),
    Sketcher.Constraint("Vertical", 7, 3, 11, 3),
    Sketcher.Constraint("Vertical", 9, 3, 13, 3),
    Sketcher.Constraint("Vertical", 11, 3, 15, 3),
    Sketcher.Constraint("Vertical", 13, 3, 17, 3),
    Sketcher.Constraint("Vertical", 15, 3, 19, 3),
    Sketcher.Constraint("Vertical", 17, 3, 21, 3),
    Sketcher.Constraint("Vertical", 19, 3, 23, 3),
    Sketcher.Constraint("Vertical", 21, 3, 25, 3),
    Sketcher.Constraint("Vertical", 23, 3, 27, 3),
    Sketcher.Constraint("Vertical", 25, 3, 29, 3),
    Sketcher.Constraint("Vertical", 27, 3, 31, 3),
    Sketcher.Constraint("DistanceX", 0, 2, 0, 1, 50.0),
    Sketcher.Constraint("Radius", 1, 1.25),
    Sketcher.Constraint("DistanceY", -1, 1, 1, 2, 35.0),
    Sketcher.Constraint("DistanceY", -1, 1, 5, 2, 30.0),
    Sketcher.Constraint("DistanceY", -1, 1, 9, 2, 25.0),
    Sketcher.Constraint("DistanceY", -1, 1, 13, 2, 20.0),
    Sketcher.Constraint("DistanceY", -1, 1, 17, 2, 15.0),
    Sketcher.Constraint("DistanceY", -1, 1, 21, 2, 10.0),
    Sketcher.Constraint("DistanceY", -1, 1, 25, 2, 5.0),
])
pocket2 = doc.addObject("PartDesign::Pocket", "Pocket001")
body.addObject(pocket2)
pocket2.Profile = sketch4
pocket2.Type = "ThroughAll"

# Sketch on XY plane
sketch5 = doc.addObject("Sketcher::SketchObject", "Sketch004")
body.addObject(sketch5)
sketch5.AttachmentSupport = (doc.XY_Plane, [""])
sketch5.MapMode = "FlatFace"
sketch5.addGeometry([
    Part.LineSegment(V(21, -41, 0), V(21, -46, 0)),
    Part.LineSegment(V(21, -46, 0), V(-24, -46, 0)),
    Part.LineSegment(V(-24, -46, 0), V(-24, -41, 0)),
    Part.LineSegment(V(-24, -41, 0), V(21, -41, 0)),
], False)
sketch5.addConstraint([
    Sketcher.Constraint("Coincident", 0, 2, 1, 1),
    Sketcher.Constraint("Coincident", 1, 2, 2, 1),
    Sketcher.Constraint("Coincident", 2, 2, 3, 1),
    Sketcher.Constraint("Coincident", 3, 2, 0, 1),
    Sketcher.Constraint("Vertical", 0),
    Sketcher.Constraint("Horizontal", 1),
    Sketcher.Constraint("Vertical", 2),
    Sketcher.Constraint("Horizontal", 3),
    Sketcher.Constraint("DistanceY", 0, 2, 0, 1, 5.0),
    Sketcher.Constraint("DistanceY", 0, 2, -1, 1, 46.25),
    Sketcher.Constraint("DistanceX", 1, 2, 1, 1, 45.209659),
    Sketcher.Constraint("DistanceX", -1, 1, 0, 2, 21.466756),
])
pad3 = doc.addObject("PartDesign::Pad", "Pad002")
body.addObject(pad3)
pad3.Profile = sketch5
pad3.Length = 5.5
pad3.Reversed = True
doc.recompute()

fillet3 = doc.addObject("PartDesign::Fillet", "Fillet002")
body.addObject(fillet3)
fillet3.Base = (pad3, edges_at(pad3, [(-23.743, -43.75, 0), (-1.138, -41.25, 0), (21.467, -43.75, 0)]))
fillet3.Radius = 2.5

doc.recompute()
